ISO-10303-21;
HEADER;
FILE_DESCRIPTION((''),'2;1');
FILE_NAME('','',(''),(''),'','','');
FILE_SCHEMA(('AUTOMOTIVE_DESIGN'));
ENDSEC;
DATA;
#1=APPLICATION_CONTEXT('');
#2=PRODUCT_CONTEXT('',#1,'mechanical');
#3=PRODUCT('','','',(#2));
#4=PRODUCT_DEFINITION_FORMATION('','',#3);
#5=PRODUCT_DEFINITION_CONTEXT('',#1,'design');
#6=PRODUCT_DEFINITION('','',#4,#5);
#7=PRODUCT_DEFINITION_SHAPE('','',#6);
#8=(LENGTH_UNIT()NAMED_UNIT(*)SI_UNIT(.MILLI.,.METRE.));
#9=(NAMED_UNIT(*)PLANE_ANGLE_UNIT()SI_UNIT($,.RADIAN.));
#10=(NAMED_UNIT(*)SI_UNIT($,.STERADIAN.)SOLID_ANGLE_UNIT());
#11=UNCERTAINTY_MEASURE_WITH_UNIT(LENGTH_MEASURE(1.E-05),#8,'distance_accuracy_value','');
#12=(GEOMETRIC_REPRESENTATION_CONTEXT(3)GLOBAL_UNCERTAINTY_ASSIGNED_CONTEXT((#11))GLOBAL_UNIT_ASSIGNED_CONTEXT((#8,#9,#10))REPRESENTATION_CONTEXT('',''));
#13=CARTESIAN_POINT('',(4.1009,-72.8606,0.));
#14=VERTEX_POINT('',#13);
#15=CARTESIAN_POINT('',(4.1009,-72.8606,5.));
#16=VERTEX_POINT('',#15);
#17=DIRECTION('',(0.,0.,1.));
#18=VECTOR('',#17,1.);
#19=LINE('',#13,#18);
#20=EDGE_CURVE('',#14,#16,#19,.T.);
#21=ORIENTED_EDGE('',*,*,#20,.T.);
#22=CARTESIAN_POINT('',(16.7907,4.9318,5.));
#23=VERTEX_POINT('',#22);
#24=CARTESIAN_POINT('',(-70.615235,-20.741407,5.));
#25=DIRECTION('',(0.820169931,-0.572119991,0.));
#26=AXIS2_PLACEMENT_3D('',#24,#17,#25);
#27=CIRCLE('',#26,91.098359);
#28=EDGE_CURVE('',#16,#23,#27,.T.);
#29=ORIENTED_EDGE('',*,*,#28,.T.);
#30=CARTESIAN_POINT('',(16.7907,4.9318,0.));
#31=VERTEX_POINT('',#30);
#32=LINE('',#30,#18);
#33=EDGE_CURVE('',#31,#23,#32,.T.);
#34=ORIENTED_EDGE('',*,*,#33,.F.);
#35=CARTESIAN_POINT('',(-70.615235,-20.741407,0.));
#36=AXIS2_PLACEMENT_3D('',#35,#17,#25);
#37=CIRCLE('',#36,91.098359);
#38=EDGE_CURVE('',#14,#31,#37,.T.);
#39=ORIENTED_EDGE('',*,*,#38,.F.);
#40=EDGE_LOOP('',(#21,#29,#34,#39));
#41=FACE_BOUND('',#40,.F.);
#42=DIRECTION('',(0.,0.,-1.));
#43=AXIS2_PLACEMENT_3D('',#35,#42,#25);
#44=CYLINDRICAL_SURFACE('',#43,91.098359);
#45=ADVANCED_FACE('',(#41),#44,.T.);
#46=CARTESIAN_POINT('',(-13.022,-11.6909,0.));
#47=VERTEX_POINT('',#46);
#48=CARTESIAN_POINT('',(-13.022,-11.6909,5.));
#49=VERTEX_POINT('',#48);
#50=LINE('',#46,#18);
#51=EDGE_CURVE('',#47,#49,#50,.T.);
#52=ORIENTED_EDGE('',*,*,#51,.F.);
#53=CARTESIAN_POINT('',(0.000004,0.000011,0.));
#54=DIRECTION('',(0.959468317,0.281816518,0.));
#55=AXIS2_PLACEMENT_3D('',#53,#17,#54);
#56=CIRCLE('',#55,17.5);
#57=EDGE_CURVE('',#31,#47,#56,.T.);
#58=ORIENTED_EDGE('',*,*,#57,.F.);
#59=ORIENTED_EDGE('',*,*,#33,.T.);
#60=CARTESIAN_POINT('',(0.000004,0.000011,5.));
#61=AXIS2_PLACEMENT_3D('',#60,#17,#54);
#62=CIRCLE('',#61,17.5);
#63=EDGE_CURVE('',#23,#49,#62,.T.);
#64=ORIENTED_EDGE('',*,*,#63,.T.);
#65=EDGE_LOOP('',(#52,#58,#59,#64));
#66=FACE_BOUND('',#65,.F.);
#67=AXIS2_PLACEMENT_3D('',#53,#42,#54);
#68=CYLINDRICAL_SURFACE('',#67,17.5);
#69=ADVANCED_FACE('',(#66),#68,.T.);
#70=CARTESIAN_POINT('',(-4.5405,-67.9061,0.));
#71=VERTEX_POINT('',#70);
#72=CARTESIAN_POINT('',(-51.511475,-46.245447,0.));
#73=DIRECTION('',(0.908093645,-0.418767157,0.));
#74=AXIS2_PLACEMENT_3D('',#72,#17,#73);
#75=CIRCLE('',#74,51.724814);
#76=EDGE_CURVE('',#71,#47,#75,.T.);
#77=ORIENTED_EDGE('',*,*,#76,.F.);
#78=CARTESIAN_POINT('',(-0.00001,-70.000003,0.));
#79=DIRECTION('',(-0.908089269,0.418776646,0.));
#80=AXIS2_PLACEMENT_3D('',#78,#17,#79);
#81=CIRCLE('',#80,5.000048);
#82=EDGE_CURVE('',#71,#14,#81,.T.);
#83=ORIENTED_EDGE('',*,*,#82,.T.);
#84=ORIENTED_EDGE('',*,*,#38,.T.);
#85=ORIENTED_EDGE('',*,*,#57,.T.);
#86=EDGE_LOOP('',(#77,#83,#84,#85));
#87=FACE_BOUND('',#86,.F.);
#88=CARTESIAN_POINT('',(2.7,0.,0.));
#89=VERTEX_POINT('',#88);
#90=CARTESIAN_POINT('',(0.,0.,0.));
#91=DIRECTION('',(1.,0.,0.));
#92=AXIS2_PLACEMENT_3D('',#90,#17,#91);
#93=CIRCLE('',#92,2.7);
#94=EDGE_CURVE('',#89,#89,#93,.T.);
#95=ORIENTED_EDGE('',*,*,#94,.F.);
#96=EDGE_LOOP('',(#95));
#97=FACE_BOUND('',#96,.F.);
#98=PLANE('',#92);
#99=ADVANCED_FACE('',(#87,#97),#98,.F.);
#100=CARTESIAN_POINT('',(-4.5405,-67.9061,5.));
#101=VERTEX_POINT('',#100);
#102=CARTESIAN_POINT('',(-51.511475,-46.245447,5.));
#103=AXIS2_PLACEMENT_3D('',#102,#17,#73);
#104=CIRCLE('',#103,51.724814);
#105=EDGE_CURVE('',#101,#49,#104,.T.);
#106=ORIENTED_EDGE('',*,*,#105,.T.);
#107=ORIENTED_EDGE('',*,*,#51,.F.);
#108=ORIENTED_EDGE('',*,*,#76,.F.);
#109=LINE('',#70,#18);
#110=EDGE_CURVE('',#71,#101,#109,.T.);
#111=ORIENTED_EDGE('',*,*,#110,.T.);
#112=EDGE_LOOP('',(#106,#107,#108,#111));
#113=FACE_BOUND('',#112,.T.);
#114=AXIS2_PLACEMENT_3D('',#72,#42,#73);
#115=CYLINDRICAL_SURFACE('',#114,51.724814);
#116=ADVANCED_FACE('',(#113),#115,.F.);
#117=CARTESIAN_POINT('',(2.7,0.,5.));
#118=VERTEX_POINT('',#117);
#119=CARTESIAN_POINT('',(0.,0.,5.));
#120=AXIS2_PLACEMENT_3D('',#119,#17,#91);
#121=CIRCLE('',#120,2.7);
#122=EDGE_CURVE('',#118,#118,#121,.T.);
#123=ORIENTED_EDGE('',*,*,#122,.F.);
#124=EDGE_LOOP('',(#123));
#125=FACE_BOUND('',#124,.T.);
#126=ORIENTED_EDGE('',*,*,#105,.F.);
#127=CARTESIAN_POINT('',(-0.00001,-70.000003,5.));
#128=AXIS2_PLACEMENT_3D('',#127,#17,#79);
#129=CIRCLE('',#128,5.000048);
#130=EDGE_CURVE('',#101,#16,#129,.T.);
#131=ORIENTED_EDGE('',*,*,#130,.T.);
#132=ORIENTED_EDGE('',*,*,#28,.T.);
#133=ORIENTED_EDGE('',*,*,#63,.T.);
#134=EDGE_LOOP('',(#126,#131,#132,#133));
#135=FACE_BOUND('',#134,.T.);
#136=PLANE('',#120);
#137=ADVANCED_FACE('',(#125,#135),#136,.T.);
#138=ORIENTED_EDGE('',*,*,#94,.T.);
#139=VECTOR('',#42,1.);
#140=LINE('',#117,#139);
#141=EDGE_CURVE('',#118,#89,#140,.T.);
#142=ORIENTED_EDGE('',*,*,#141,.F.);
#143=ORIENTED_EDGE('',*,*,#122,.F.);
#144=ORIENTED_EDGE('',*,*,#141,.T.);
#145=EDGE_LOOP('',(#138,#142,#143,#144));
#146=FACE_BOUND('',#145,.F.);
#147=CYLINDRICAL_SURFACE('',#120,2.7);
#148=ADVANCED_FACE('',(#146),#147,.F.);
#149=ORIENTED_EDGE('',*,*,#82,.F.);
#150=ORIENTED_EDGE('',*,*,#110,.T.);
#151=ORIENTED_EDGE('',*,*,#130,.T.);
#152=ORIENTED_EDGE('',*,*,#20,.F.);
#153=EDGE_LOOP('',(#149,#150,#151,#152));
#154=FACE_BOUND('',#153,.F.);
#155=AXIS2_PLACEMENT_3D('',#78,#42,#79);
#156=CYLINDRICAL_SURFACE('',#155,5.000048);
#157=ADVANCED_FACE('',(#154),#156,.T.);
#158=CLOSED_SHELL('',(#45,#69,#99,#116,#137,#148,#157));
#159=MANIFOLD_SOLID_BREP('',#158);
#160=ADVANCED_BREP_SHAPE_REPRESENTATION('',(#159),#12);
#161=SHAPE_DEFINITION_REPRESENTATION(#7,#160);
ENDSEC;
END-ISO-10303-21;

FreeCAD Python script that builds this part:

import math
import FreeCAD as App
import Part
import Sketcher

V = App.Vector

doc = App.newDocument("Part")
body = doc.addObject("PartDesign::Body", "Body")

# Sketch on XY plane
sketch1 = body.newObject("Sketcher::SketchObject", "Sketch")
sketch1.AttachmentSupport = (doc.getObject("XY_Plane"), [""])
sketch1.MapMode = "FlatFace"
sketch1.addGeometry(Part.ArcOfCircle(Part.Circle(V(-70.6155, -20.7413, 0), V(0, 0, 1), 91.098638), math.radians(-34.898152), math.radians(16.36866)), False)
sketch1.addGeometry(Part.ArcOfCircle(Part.Circle(V(0, 0, 0), V(0, 0, 1), 17.500007), math.radians(16.36868), math.radians(221.916882)), False)
sketch1.addGeometry(Part.ArcOfCircle(Part.Circle(V(-51.5111, -46.2455, 0), V(0, 0, 1), 51.724451), math.radians(-24.756898), math.radians(41.916742)), False)
sketch1.addGeometry(Part.ArcOfCircle(Part.Circle(V(0, -70, 0), V(0, 0, 1), 5.000056), math.radians(155.242707), math.radians(325.102138)), False)
sketch1.addConstraint(Sketcher.Constraint("Tangent", 0, 2, 1, 1))
sketch1.addConstraint(Sketcher.Constraint("Tangent", 1, 2, 2, 2))
sketch1.addConstraint(Sketcher.Constraint("Tangent", 2, 1, 3, 1))
sketch1.addConstraint(Sketcher.Constraint("Tangent", 3, 2, 0, 1))
sketch1.addConstraint(Sketcher.Constraint("Coincident", 1, 3, -1, 1))
sketch1.addConstraint(Sketcher.Constraint("PointOnObject", 3, 3, -2))
sketch1.addConstraint(Sketcher.Constraint("Radius", 3, 5.0))
sketch1.addConstraint(Sketcher.Constraint("Radius", 1, 17.5))
sketch1.addConstraint(Sketcher.Constraint("DistanceY", 3, 3, -1, 1, 70.0))
sketch1.addConstraint(Sketcher.Constraint("Radius", 0, 91.0986))
sketch1.addConstraint(Sketcher.Constraint("Radius", 2, 51.7245))
pad1 = body.newObject("PartDesign::Pad", "Pad")
pad1.Profile = sketch1
pad1.Length = 5

# Sketch on XY plane
sketch2 = body.newObject("Sketcher::SketchObject", "Sketch001")
sketch2.AttachmentSupport = (doc.getObject("XY_Plane"), [""])
sketch2.MapMode = "FlatFace"
sketch2.AttachmentOffset = App.Placement(V(0, 0, 5), App.Rotation())
sketch2.addGeometry(Part.Circle(V(0, 0, 0), V(0, 0, 1), 2.7), False)
sketch2.addConstraint(Sketcher.Constraint("Coincident", 0, 3, -1, 1))
sketch2.addConstraint(Sketcher.Constraint("Diameter", 0, 5.4))
pocket1 = body.newObject("PartDesign::Pocket", "Pocket")
pocket1.Profile = sketch2
pocket1.Type = "ThroughAll"

doc.recompute()
